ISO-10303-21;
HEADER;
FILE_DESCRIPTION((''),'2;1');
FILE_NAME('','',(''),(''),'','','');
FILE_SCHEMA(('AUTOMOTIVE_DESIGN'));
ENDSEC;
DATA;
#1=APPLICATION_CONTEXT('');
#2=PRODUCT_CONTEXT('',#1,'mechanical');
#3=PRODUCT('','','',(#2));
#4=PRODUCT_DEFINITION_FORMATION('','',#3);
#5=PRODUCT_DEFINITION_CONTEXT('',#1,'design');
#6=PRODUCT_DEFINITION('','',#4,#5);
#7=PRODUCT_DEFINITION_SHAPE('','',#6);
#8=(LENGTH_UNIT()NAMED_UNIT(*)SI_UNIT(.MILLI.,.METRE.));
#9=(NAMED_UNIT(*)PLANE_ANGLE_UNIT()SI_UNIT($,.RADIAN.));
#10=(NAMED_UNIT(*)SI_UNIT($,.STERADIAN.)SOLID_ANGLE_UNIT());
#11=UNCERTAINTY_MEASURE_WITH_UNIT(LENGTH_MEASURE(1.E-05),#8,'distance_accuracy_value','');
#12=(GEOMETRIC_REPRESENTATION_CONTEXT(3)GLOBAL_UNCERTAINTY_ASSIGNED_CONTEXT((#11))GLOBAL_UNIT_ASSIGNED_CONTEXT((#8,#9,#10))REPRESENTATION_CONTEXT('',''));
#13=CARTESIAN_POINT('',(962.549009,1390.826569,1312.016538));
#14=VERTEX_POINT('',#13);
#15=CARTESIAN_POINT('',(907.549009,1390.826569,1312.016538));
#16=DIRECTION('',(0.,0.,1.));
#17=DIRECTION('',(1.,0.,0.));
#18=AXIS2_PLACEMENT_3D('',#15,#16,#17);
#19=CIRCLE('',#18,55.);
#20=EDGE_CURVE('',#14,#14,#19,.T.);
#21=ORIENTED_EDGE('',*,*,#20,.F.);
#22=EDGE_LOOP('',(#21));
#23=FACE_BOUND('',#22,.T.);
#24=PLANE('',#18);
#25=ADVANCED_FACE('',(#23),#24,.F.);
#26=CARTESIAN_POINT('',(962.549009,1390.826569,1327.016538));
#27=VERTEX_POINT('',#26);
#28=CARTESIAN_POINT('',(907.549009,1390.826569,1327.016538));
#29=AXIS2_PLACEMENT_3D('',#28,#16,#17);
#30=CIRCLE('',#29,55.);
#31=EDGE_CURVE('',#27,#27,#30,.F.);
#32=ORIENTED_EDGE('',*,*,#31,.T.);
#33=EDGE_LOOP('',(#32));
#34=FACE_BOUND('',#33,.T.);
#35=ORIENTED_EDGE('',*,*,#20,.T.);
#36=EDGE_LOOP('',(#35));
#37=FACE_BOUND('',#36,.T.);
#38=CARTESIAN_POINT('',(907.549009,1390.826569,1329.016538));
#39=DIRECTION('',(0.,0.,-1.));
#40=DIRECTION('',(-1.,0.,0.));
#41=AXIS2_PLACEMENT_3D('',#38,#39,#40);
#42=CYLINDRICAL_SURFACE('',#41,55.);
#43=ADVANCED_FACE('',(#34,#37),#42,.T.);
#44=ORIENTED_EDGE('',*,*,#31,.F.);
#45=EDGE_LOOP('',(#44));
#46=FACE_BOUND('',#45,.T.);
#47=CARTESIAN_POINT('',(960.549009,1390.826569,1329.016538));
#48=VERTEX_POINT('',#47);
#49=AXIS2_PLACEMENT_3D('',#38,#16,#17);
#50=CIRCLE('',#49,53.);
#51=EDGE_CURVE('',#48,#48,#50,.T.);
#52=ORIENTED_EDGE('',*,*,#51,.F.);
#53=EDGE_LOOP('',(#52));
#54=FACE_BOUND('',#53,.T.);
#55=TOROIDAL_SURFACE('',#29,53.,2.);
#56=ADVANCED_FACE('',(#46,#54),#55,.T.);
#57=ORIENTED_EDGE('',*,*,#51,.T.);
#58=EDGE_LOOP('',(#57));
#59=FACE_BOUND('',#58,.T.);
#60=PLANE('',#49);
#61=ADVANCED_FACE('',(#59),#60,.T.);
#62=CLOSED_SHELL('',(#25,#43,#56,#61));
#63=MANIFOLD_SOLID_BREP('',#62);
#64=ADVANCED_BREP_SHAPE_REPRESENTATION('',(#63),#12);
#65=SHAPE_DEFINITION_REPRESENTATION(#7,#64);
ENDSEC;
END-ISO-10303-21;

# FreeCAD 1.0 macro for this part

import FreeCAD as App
import Part
import Sketcher
from FreeCAD import Vector


def edges_at(feature, points):
    """Names of the edges that pass closest to the given points."""
    edges = feature.Shape.Edges
    near = lambda p: min(range(len(edges)), key=lambda i: edges[i].distToShape(Part.Vertex(*p))[0])
    return sorted({f"Edge{near(p) + 1}" for p in points})

doc = App.newDocument("Part")
body = doc.addObject("PartDesign::Body", "Body")

# Sketch on XY plane
sketch1 = body.newObject("Sketcher::SketchObject", "Sketch")
sketch1.AttachmentSupport = (doc.getObject("XY_Plane"), [""])
sketch1.MapMode = "FlatFace"
sketch1.AttachmentOffset = App.Placement(Vector(0, 0, 1312.016538), App.Rotation())
sketch1.addGeometry(Part.Circle(Vector(908, 1391, 0), Vector(0, 0, 1), 55), False)
sketch1.addConstraint([
    Sketcher.Constraint("Diameter", 0, 110.0),
    Sketcher.Constraint("DistanceX", -1, 1, 0, 3, 907.549009),
    Sketcher.Constraint("DistanceY", -1, 1, 0, 3, 1390.826569),
])
pad1 = body.newObject("PartDesign::Pad", "Pad")
pad1.Profile = sketch1
pad1.Length = 17
doc.recompute()

fillet = body.newObject("PartDesign::Fillet", "Fillet")
fillet.Base = (pad1, edges_at(pad1, [(852.549, 1390.827, 1329.017)]))
fillet.Radius = 2

doc.recompute()
